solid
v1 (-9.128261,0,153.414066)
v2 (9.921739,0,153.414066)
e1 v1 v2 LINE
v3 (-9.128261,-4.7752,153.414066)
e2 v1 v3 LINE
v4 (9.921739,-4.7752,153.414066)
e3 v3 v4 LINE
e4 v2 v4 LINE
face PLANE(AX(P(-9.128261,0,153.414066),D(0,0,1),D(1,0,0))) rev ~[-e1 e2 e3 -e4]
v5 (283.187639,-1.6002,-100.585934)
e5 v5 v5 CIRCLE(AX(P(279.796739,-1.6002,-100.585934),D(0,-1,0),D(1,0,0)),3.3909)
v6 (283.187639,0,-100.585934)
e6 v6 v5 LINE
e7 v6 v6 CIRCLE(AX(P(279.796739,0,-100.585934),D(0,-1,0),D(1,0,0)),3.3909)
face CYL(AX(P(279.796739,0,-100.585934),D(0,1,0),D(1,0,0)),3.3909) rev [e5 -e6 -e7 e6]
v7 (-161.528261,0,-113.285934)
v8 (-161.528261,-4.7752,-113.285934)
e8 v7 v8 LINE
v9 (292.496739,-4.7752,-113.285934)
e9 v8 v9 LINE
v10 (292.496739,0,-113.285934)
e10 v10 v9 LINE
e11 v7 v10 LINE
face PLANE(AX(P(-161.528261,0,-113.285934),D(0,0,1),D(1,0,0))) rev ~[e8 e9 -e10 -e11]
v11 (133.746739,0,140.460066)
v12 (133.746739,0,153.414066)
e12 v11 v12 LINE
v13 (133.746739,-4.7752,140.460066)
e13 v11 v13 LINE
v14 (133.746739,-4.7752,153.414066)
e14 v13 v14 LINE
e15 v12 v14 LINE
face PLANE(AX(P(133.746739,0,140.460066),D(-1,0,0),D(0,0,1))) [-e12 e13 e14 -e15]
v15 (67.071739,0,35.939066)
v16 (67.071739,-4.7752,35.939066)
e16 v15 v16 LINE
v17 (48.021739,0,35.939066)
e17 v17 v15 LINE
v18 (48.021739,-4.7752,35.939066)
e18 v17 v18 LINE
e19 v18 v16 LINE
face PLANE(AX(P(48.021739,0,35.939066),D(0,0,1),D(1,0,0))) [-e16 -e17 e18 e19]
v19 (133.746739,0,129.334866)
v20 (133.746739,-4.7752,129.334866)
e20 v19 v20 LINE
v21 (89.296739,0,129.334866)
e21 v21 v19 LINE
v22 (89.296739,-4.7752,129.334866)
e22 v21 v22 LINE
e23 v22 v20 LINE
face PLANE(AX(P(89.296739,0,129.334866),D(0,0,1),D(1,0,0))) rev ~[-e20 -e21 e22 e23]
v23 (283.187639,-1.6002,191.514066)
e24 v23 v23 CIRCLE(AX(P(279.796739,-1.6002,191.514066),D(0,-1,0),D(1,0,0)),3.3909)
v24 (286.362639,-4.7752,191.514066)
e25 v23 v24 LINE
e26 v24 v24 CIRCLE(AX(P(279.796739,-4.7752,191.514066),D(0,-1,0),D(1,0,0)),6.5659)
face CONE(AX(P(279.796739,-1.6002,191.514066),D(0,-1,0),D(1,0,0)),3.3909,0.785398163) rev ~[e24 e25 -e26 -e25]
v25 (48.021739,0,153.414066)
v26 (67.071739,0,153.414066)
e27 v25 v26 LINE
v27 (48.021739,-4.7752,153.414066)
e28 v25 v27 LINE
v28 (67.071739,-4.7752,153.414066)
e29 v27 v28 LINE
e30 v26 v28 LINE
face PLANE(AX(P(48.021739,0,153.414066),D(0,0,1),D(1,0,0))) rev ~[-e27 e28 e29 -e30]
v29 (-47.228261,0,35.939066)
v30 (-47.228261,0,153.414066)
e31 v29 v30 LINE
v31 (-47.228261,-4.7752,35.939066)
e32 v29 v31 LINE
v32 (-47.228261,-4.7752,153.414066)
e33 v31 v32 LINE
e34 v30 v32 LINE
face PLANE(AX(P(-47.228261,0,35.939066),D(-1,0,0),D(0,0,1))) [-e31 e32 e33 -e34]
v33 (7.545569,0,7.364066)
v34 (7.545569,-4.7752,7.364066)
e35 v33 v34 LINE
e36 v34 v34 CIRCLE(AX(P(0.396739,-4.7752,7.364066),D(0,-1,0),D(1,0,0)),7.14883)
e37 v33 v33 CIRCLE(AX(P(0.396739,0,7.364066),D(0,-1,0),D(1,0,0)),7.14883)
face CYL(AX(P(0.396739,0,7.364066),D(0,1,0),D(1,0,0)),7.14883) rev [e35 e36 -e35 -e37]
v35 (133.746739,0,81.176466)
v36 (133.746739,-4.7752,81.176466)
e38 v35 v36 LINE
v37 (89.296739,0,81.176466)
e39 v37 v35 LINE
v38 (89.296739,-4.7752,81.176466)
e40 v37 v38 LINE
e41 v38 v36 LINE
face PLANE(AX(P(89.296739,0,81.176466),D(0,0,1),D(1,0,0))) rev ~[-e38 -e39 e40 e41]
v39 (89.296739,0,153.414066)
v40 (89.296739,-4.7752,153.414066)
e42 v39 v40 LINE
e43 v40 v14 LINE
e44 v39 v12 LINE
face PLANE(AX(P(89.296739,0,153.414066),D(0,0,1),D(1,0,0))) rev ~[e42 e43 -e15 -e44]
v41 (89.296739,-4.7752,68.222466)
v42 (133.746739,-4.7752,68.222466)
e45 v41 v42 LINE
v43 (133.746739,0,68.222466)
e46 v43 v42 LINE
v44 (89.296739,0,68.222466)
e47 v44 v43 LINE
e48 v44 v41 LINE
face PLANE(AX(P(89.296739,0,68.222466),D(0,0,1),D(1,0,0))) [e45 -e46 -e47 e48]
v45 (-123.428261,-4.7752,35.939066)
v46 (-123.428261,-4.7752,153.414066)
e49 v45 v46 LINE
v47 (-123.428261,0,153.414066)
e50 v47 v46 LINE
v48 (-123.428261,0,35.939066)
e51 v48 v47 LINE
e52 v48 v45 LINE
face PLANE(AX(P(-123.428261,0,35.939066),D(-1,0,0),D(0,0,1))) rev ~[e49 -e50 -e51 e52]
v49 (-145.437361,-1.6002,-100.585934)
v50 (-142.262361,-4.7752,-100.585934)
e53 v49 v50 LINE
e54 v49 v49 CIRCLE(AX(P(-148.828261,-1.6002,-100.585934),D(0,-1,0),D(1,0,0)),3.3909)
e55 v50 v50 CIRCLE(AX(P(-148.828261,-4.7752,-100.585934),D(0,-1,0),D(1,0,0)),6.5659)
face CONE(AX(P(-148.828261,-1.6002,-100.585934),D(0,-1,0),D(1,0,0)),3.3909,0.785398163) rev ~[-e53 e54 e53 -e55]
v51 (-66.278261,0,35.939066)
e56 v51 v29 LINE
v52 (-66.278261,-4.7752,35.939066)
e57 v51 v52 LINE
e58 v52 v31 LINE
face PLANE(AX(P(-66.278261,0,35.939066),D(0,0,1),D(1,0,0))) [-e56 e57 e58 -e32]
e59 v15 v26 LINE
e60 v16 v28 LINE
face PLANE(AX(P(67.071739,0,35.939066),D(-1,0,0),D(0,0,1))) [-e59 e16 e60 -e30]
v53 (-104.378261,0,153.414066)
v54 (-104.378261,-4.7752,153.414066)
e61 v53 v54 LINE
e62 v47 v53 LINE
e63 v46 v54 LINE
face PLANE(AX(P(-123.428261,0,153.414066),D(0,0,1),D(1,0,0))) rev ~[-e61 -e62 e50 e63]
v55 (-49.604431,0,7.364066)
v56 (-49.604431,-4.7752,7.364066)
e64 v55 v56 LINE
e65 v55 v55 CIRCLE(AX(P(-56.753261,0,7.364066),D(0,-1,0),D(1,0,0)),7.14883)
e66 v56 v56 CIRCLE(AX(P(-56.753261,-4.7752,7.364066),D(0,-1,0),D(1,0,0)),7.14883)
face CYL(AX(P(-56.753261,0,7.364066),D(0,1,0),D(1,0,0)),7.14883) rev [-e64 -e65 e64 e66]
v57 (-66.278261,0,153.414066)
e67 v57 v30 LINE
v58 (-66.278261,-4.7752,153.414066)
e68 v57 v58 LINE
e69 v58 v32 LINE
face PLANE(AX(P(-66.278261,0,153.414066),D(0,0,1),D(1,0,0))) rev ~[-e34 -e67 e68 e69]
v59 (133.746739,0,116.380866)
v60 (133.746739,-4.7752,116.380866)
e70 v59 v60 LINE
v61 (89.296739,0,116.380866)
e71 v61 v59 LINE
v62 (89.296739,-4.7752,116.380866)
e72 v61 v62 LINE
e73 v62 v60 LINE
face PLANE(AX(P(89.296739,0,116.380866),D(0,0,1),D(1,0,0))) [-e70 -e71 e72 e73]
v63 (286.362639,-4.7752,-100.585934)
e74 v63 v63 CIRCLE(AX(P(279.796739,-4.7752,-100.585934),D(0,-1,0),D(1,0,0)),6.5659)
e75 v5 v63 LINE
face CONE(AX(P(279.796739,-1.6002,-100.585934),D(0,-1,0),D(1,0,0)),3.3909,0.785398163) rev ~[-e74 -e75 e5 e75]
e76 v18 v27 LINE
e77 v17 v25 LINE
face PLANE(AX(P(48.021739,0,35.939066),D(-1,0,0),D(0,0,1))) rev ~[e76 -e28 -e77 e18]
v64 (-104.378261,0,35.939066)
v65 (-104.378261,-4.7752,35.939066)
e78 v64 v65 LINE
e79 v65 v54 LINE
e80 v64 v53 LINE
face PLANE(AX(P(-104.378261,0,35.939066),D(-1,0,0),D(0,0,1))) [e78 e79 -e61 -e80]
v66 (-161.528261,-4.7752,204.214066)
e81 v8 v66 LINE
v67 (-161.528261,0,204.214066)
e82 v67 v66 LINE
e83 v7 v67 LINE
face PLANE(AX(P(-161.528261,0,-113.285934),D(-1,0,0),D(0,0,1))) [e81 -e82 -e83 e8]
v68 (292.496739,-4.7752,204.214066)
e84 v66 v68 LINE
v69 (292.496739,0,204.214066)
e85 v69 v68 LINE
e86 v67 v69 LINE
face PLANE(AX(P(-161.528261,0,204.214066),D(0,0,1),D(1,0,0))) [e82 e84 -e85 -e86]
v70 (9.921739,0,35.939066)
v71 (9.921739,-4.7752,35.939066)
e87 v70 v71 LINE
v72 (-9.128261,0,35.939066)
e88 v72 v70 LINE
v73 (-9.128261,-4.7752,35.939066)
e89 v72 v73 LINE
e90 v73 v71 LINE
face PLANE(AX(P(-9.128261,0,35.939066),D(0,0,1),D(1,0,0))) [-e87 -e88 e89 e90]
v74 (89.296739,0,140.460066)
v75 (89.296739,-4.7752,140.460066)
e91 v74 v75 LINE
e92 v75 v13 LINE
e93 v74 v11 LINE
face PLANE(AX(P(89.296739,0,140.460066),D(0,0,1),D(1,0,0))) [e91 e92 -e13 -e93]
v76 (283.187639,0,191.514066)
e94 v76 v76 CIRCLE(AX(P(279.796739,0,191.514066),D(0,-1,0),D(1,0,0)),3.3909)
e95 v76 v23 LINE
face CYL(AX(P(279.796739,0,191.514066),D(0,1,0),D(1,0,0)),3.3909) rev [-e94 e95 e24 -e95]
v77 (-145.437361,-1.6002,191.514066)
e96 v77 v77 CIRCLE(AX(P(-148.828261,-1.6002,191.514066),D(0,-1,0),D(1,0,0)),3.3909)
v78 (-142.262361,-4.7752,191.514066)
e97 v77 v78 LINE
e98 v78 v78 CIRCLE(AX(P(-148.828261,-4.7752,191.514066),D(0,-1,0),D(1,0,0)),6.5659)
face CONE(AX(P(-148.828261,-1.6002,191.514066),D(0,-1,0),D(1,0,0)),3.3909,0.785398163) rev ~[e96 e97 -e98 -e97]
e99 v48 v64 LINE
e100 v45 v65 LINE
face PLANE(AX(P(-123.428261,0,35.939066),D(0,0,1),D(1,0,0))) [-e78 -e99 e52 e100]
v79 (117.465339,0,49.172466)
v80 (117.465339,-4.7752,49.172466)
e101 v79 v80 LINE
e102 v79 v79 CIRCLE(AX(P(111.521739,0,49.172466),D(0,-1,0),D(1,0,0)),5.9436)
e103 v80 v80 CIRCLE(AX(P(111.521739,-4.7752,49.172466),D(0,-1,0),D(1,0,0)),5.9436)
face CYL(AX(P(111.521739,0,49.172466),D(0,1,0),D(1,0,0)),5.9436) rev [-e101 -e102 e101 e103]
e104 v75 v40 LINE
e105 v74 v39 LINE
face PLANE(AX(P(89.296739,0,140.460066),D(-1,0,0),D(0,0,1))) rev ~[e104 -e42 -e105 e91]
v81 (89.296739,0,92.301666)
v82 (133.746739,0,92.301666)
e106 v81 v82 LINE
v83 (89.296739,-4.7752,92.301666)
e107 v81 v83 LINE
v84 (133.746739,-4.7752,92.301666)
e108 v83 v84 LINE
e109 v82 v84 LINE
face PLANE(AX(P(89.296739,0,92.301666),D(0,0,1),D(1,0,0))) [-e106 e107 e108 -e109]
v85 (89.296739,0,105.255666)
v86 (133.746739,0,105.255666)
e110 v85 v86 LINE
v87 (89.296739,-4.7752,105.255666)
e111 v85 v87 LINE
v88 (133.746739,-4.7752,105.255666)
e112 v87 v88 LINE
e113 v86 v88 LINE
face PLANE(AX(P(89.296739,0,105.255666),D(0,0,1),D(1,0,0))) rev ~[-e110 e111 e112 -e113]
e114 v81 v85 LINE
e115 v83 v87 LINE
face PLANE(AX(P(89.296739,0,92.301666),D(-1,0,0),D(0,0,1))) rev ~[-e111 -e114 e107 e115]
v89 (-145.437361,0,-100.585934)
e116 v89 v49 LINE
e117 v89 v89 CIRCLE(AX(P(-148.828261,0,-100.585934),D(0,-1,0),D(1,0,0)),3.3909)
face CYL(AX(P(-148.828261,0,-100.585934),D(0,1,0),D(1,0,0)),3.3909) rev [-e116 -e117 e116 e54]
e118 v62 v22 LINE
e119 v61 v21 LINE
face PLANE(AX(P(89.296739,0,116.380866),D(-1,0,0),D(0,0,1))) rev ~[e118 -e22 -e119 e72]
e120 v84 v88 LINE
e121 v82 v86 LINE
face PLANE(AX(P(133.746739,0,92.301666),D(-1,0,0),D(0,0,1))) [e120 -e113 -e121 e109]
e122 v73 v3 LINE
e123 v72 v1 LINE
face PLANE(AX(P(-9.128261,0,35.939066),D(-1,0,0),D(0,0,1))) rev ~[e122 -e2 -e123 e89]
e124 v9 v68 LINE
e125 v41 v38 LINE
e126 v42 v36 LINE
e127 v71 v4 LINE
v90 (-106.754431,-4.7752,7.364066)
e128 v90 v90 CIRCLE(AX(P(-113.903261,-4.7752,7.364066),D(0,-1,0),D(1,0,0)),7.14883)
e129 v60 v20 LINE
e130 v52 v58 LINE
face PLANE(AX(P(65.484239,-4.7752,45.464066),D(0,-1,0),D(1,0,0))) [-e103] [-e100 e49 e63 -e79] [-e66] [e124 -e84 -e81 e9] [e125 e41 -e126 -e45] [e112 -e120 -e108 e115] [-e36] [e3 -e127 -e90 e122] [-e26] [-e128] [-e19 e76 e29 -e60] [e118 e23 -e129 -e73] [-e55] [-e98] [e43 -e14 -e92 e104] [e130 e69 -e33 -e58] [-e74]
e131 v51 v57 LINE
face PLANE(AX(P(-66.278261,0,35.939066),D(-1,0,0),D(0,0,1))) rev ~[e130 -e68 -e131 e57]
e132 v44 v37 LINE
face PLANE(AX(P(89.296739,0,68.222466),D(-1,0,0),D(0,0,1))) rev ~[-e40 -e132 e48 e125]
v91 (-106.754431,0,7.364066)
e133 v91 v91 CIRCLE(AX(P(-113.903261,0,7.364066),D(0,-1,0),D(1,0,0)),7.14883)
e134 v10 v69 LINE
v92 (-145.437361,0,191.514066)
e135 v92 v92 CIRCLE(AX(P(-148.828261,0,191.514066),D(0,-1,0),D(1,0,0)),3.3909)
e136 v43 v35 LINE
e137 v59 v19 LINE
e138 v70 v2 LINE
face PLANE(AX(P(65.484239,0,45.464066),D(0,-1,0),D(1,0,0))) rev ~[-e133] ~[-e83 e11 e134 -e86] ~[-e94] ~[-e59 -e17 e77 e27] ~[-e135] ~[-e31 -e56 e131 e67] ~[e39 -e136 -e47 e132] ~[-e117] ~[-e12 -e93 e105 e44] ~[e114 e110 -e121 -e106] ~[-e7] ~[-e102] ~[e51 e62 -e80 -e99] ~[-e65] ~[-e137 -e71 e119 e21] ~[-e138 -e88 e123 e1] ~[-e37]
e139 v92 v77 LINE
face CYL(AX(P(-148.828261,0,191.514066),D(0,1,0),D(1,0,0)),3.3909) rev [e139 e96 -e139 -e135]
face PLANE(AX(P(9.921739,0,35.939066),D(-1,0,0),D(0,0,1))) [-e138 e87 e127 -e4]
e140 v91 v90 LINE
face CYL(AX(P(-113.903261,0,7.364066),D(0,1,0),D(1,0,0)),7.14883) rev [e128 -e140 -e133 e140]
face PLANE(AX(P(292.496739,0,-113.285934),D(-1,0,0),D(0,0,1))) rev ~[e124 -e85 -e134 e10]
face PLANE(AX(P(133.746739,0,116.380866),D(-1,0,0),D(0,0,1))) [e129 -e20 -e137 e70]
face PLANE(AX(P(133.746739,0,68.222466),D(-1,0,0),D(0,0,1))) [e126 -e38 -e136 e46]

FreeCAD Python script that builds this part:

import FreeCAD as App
import Part
import Sketcher
from FreeCAD import Vector
Q = App.Units.Quantity


def edges_at(feature, points):
    """Names of the edges that pass closest to the given points."""
    edges = feature.Shape.Edges
    near = lambda p: min(range(len(edges)), key=lambda i: edges[i].distToShape(Part.Vertex(*p))[0])
    return sorted({f"Edge{near(p) + 1}" for p in points})


def add_polygon(sketch, points):
    """Adds a closed chain of lines whose ends are joined by coincident constraints."""
    first, n = sketch.GeometryCount, len(points)
    for a, b in zip(points, points[1:] + points[:1]):
        sketch.addGeometry(Part.LineSegment(App.Vector(*a, 0), App.Vector(*b, 0)), False)
    for i in range(n):
        sketch.addConstraint(Sketcher.Constraint("Coincident", first + i, 2, first + (i + 1) % n, 1))

doc = App.newDocument("Part")
params = doc.addObject("Spreadsheet::Sheet", "Params")
for row, (alias, value) in enumerate([
    ("sketch1_diameter", "0.267 in"),
    ("sketch1_diameter2", "0.468 in"),
    ("sketch1_height", "12.5 in"),
    ("sketch1_width", "0.75 in"),
    ("sketch1_width2", "1.75 in"),
    ("pad1_length", "0.188 in"),
    ("chamfer_size", "0.125 in"),
], start=1):
    params.set(f"A{row}", alias)
    params.set(f"B{row}", "=" + value)
    params.setAlias(f"B{row}", alias)

body = doc.addObject("PartDesign::Body", "Body")

# Sketch on XZ plane
sketch1 = body.newObject("Sketcher::SketchObject", "Sketch")
sketch1.AttachmentSupport = (doc.getObject("XZ_Plane"), [""])
sketch1.MapMode = "FlatFace"
add_polygon(sketch1, [(-161.5, 204.2), (-161.5, -113.3), (292.5, -113.3), (292.5, 204.2)])  # lines 0-3
sketch1.addGeometry(Part.Circle(Vector(-148.8, -100.6, 0), Vector(0, 0, 1), 3.4), False)  # 4
sketch1.addGeometry(Part.Circle(Vector(-113.9, 7.4, 0), Vector(0, 0, 1), 7.1), False)  # 5
sketch1.addGeometry(Part.Circle(Vector(-56.8, 7.4, 0), Vector(0, 0, 1), 7.1), False)  # 6
sketch1.addGeometry(Part.Circle(Vector(0.4, 7.4, 0), Vector(0, 0, 1), 7.1), False)  # 7
sketch1.addGeometry(Part.Circle(Vector(279.8, -100.6, 0), Vector(0, 0, 1), 3.4), False)  # 8
add_polygon(sketch1, [(-104.4, 35.9), (-123.4, 35.9), (-123.4, 153.4), (-104.4, 153.4)])  # lines 9-12
add_polygon(sketch1, [(-47.2, 35.9), (-66.3, 35.9), (-66.3, 153.4), (-47.2, 153.4)])  # lines 13-16
add_polygon(sketch1, [(9.9, 35.9), (-9.1, 35.9), (-9.1, 153.4), (9.9, 153.4)])  # lines 17-20
add_polygon(sketch1, [(67.1, 35.9), (48, 35.9), (48, 153.4), (67.1, 153.4)])  # lines 21-24
sketch1.addGeometry(Part.Circle(Vector(-148.8, 191.5, 0), Vector(0, 0, 1), 3.4), False)  # 25
sketch1.addGeometry(Part.Circle(Vector(111.5, 49.2, 0), Vector(0, 0, 1), 5.9), False)  # 26
add_polygon(sketch1, [(133.7, 68.2), (89.3, 68.2), (89.3, 81.2), (133.7, 81.2)])  # lines 27-30
add_polygon(sketch1, [(133.7, 92.3), (89.3, 92.3), (89.3, 105.3), (133.7, 105.3)])  # lines 31-34
add_polygon(sketch1, [(133.7, 116.4), (89.3, 116.4), (89.3, 129.3), (133.7, 129.3)])  # lines 35-38
add_polygon(sketch1, [(133.7, 140.5), (89.3, 140.5), (89.3, 153.4), (133.7, 153.4)])  # lines 39-42
sketch1.addGeometry(Part.Circle(Vector(279.8, 191.5, 0), Vector(0, 0, 1), 3.4), False)  # 43
sketch1.addConstraint([
    Sketcher.Constraint("Vertical", 0),
    Sketcher.Constraint("Horizontal", 1),
    Sketcher.Constraint("Vertical", 2),
    Sketcher.Constraint("Horizontal", 3),
    Sketcher.Constraint("Horizontal", 9),
    Sketcher.Constraint("Vertical", 10),
    Sketcher.Constraint("Horizontal", 11),
    Sketcher.Constraint("Vertical", 12),
    Sketcher.Constraint("Horizontal", 13),
    Sketcher.Constraint("Vertical", 14),
    Sketcher.Constraint("Horizontal", 15),
    Sketcher.Constraint("Vertical", 16),
    Sketcher.Constraint("Horizontal", 17),
    Sketcher.Constraint("Vertical", 18),
    Sketcher.Constraint("Horizontal", 19),
    Sketcher.Constraint("Vertical", 20),
    Sketcher.Constraint("Horizontal", 21),
    Sketcher.Constraint("Vertical", 22),
    Sketcher.Constraint("Horizontal", 23),
    Sketcher.Constraint("Vertical", 24),
    Sketcher.Constraint("Horizontal", 27),
    Sketcher.Constraint("Vertical", 28),
    Sketcher.Constraint("Horizontal", 29),
    Sketcher.Constraint("Vertical", 30),
    Sketcher.Constraint("Horizontal", 31),
    Sketcher.Constraint("Vertical", 32),
    Sketcher.Constraint("Horizontal", 33),
    Sketcher.Constraint("Vertical", 34),
    Sketcher.Constraint("Horizontal", 35),
    Sketcher.Constraint("Vertical", 36),
    Sketcher.Constraint("Horizontal", 37),
    Sketcher.Constraint("Vertical", 38),
    Sketcher.Constraint("Horizontal", 39),
    Sketcher.Constraint("Vertical", 40),
    Sketcher.Constraint("Horizontal", 41),
    Sketcher.Constraint("Vertical", 42),
    Sketcher.Constraint("Equal", 5, 6),
    Sketcher.Constraint("Equal", 6, 7),
    Sketcher.Constraint("Equal", 4, 8),
    Sketcher.Constraint("Equal", 8, 25),
    Sketcher.Constraint("Equal", 25, 43),
    Sketcher.Constraint("Horizontal", 5, 3, 6, 3),
    Sketcher.Constraint("Horizontal", 6, 3, 7, 3),
    Sketcher.Constraint("Horizontal", 4, 3, 8, 3),
    Sketcher.Constraint("Horizontal", 25, 3, 43, 3),
    Sketcher.Constraint("Horizontal", 12, 2, 13, 2),
    Sketcher.Constraint("Horizontal", 11, 2, 14, 2),
    Sketcher.Constraint("Horizontal", 16, 2, 17, 2),
    Sketcher.Constraint("Horizontal", 15, 2, 18, 2),
    Sketcher.Constraint("Horizontal", 20, 2, 21, 2),
    Sketcher.Constraint("Horizontal", 19, 2, 22, 2),
    Sketcher.Constraint("Horizontal", 23, 2, 40, 2),
    Sketcher.Constraint("Vertical", 4, 3, 25, 3),
    Sketcher.Constraint("Vertical", 8, 3, 43, 3),
    Sketcher.Constraint("Vertical", 28, 2, 31, 2),
    Sketcher.Constraint("Vertical", 30, 2, 33, 2),
    Sketcher.Constraint("Vertical", 32, 2, 35, 2),
    Sketcher.Constraint("Vertical", 34, 2, 37, 2),
    Sketcher.Constraint("Vertical", 36, 2, 39, 2),
    Sketcher.Constraint("Vertical", 38, 2, 41, 2),
    Sketcher.Constraint("Equal", 11, 13),
    Sketcher.Constraint("Equal", 15, 17),
    Sketcher.Constraint("Equal", 19, 21),
    Sketcher.Constraint("Equal", 30, 32),
    Sketcher.Constraint("Equal", 34, 36),
    Sketcher.Constraint("Equal", 38, 40),
    Sketcher.Constraint("Diameter", 4, Q("0.267 in")),
    Sketcher.Constraint("Diameter", 26, Q("0.468 in")),
    Sketcher.Constraint("DistanceY", 0, 2, 0, 1, Q("12.5 in")),
    Sketcher.Constraint("DistanceX", 7, 3, 8, 3, Q("11 in")),
    Sketcher.Constraint("DistanceY", 0, 2, 25, 3, Q("12 in")),
    Sketcher.Constraint("DistanceY", 8, 3, 2, 2, Q("12 in")),
    Sketcher.Constraint("DistanceX", 4, 3, 9, 2, Q("1 in")),
    Sketcher.Constraint("DistanceY", 10, 2, 3, 2, Q("2 in")),
    Sketcher.Constraint("DistanceX", 10, 2, 15, 2, Q("3 in")),
    Sketcher.Constraint("DistanceX", 14, 2, 19, 2, Q("3 in")),
    Sketcher.Constraint("DistanceX", 18, 2, 23, 2, Q("3 in")),
    Sketcher.Constraint("Diameter", 5, Q("0.5629 in")),
    Sketcher.Constraint("DistanceX", 9, 2, 9, 1, Q("0.75 in")),
    Sketcher.Constraint("DistanceX", 27, 2, 27, 1, Q("1.75 in")),
    Sketcher.Constraint("DistanceY", 28, 1, 28, 2, Q("0.51 in")),
    Sketcher.Constraint("DistanceX", 5, 3, 7, 3, Q("4.5 in")),
    Sketcher.Constraint("DistanceX", 0, 2, 4, 3, Q("0.5 in")),
    Sketcher.Constraint("DistanceX", 8, 3, 1, 2, Q("0.5 in")),
    Sketcher.Constraint("DistanceX", 21, 2, 26, 3, Q("2.5 in")),
    Sketcher.Constraint("DistanceX", 1, 1, 1, 2, Q("17.875 in")),
    Sketcher.Constraint("DistanceY", 10, 1, 10, 2, Q("4.625 in")),
    Sketcher.Constraint("DistanceY", 4, 3, 5, 3, Q("4.25 in")),
    Sketcher.Constraint("DistanceX", 5, 3, 6, 3, Q("2.25 in")),
    Sketcher.Constraint("DistanceY", 26, 3, 27, 2, Q("0.75 in")),
    Sketcher.Constraint("DistanceY", 7, 3, 26, 3, Q("1.646 in")),
    Sketcher.Constraint("DistanceX", 27, 2, 26, 3, Q("0.875 in")),
    Sketcher.Constraint("DistanceY", 28, 2, 31, 2, Q("0.438 in")),
    Sketcher.Constraint("DistanceY", 32, 2, 35, 2, Q("0.438 in")),
    Sketcher.Constraint("DistanceX", 4, 3, -1, 1, 148.828261),
    Sketcher.Constraint("DistanceY", 4, 3, -1, 1, 100.585934),
])
sketch1.setExpression("Constraints[102]", "Params.sketch1_diameter")
sketch1.setExpression("Constraints[103]", "Params.sketch1_diameter2")
sketch1.setExpression("Constraints[104]", "Params.sketch1_height")
sketch1.setExpression("Constraints[114]", "Params.sketch1_width")
sketch1.setExpression("Constraints[115]", "Params.sketch1_width2")
pad1 = body.newObject("PartDesign::Pad", "Pad")
pad1.Profile = sketch1
pad1.setExpression("Length", "Params.pad1_length")
doc.recompute()

chamfer = body.newObject("PartDesign::Chamfer", "Chamfer")
chamfer.Base = (pad1, edges_at(pad1, [
    (-152.219, -4.775, -100.586),
    (276.406, -4.775, -100.586),
    (276.406, -4.775, 191.514),
    (-152.219, -4.775, 191.514),
]))
chamfer.setExpression("Size", "Params.chamfer_size")

doc.recompute()
